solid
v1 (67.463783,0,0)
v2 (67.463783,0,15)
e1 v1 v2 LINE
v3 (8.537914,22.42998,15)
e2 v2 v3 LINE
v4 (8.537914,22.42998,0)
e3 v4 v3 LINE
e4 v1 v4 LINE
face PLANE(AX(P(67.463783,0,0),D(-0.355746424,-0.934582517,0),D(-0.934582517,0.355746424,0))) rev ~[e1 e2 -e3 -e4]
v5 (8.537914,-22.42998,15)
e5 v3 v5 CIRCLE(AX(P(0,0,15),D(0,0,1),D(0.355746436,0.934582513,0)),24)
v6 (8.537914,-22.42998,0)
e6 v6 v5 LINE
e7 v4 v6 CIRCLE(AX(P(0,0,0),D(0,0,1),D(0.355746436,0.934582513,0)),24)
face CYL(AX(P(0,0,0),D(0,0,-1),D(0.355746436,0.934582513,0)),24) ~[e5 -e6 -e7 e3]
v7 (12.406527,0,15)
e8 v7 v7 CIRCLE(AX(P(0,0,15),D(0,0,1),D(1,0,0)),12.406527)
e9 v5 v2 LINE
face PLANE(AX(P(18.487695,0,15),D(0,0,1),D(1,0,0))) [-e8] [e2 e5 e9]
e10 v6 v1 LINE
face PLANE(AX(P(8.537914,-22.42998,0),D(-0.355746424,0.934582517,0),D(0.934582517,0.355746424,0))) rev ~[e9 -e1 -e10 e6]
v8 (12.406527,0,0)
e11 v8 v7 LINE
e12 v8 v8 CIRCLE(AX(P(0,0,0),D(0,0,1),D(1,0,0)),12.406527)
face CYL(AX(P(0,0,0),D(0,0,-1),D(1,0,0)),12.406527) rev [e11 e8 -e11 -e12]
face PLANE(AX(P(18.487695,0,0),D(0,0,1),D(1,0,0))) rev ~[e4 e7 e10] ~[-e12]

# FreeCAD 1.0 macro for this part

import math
import FreeCAD as App
import Part
import Sketcher

doc = App.newDocument("Part")
body = doc.addObject("PartDesign::Body", "Body")

# Sketch on XY plane
sketch1 = body.newObject("Sketcher::SketchObject", "Sketch")
sketch1.AttachmentSupport = (doc.getObject("XY_Plane"), [""])
sketch1.MapMode = "FlatFace"
sketch1.addGeometry([
    Part.LineSegment(App.Vector(67, 0, 0), App.Vector(9, 22, 0)),
    Part.ArcOfCircle(Part.Circle(App.Vector(0, 0, 0), App.Vector(0, 0, 1), 24), math.radians(69), math.radians(291)),
    Part.LineSegment(App.Vector(9, -22, 0), App.Vector(67, 0, 0)),
    Part.Circle(App.Vector(0, 0, 0), App.Vector(0, 0, 1), 12),
], False)
sketch1.addConstraint([
    Sketcher.Constraint("Tangent", 0, 2, 1, 1),
    Sketcher.Constraint("Tangent", 1, 2, 2, 1),
    Sketcher.Constraint("Coincident", 2, 2, 0, 1),
    Sketcher.Constraint("Coincident", 1, 3, -1, 1),
    Sketcher.Constraint("Coincident", 3, 3, -1, 1),
    Sketcher.Constraint("PointOnObject", 2, 2, -1),
    Sketcher.Constraint("Radius", 1, 24.0),
    Sketcher.Constraint("Diameter", 3, 24.813054),
    Sketcher.Constraint("DistanceY", -1, 1, 0, 2, 22.42998),
])
pad1 = body.newObject("PartDesign::Pad", "Pad")
pad1.Profile = sketch1
pad1.Length = 15

doc.recompute()
